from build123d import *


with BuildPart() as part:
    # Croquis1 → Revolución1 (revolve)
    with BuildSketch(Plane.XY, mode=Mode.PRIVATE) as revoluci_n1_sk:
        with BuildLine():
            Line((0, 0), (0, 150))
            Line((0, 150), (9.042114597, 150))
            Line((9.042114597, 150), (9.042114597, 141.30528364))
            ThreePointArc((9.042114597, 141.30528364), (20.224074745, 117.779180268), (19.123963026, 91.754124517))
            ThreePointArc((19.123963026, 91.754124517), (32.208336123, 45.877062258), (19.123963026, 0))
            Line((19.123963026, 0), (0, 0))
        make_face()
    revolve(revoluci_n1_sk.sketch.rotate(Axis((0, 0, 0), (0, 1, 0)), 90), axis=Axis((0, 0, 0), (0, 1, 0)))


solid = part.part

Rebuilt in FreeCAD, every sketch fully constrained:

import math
import FreeCAD as App
import Part
import Sketcher

V = App.Vector

doc = App.newDocument("Part")
body = doc.addObject("PartDesign::Body", "Body")

# Sketch on XY plane
sketch1 = body.newObject("Sketcher::SketchObject", "Sketch")
sketch1.AttachmentSupport = (doc.getObject("XY_Plane"), [""])
sketch1.MapMode = "FlatFace"
sketch1.addGeometry([
    Part.LineSegment(V(0, 150, 0), V(0, 0, 0)),  # 0
    Part.LineSegment(V(0, 0, 0), V(19, 0, 0)),  # 1
    Part.ArcOfCircle(Part.Circle(V(-55, 46, 0), V(0, 0, 1), 87), math.radians(-32), math.radians(32)),  # 2
    Part.ArcOfCircle(Part.Circle(V(-33, 107, 0), V(0, 0, 1), 54), math.radians(-16), math.radians(39)),  # 3
    Part.LineSegment(V(9, 141, 0), V(9, 150, 0)),  # 4
    Part.LineSegment(V(9, 150, 0), V(0, 150, 0)),  # 5
], False)
sketch1.addConstraint([
    Sketcher.Constraint("Coincident", 0, 2, 1, 1),
    Sketcher.Constraint("Coincident", 1, 2, 2, 1),
    Sketcher.Constraint("Coincident", 2, 2, 3, 1),
    Sketcher.Constraint("Coincident", 3, 2, 4, 1),
    Sketcher.Constraint("Coincident", 4, 2, 5, 1),
    Sketcher.Constraint("Coincident", 5, 2, 0, 1),
    Sketcher.Constraint("Vertical", 0),
    Sketcher.Constraint("Horizontal", 1),
    Sketcher.Constraint("Vertical", 4),
    Sketcher.Constraint("Horizontal", 5),
    Sketcher.Constraint("Coincident", 0, 2, -1, 1),
    Sketcher.Constraint("Vertical", 1, 2, 2, 2),
    Sketcher.Constraint("DistanceY", 0, 2, 0, 1, 150.0),
    Sketcher.Constraint("Radius", 3, 54.135082),
    Sketcher.Constraint("Radius", 2, 86.970375),
    Sketcher.Constraint("DistanceX", 2, 3, 1, 2, 73.886002),
    Sketcher.Constraint("DistanceX", 1, 1, 1, 2, 19.123963),
    Sketcher.Constraint("DistanceX", 5, 2, 5, 1, 9.042115),
    Sketcher.Constraint("DistanceY", 4, 1, 4, 2, 8.694716),
])
revolution = body.newObject("PartDesign::Revolution", "Revolution")
revolution.Profile = sketch1
revolution.ReferenceAxis = (sketch1, ["V_Axis"])
revolution.Angle = 360

doc.recompute()
